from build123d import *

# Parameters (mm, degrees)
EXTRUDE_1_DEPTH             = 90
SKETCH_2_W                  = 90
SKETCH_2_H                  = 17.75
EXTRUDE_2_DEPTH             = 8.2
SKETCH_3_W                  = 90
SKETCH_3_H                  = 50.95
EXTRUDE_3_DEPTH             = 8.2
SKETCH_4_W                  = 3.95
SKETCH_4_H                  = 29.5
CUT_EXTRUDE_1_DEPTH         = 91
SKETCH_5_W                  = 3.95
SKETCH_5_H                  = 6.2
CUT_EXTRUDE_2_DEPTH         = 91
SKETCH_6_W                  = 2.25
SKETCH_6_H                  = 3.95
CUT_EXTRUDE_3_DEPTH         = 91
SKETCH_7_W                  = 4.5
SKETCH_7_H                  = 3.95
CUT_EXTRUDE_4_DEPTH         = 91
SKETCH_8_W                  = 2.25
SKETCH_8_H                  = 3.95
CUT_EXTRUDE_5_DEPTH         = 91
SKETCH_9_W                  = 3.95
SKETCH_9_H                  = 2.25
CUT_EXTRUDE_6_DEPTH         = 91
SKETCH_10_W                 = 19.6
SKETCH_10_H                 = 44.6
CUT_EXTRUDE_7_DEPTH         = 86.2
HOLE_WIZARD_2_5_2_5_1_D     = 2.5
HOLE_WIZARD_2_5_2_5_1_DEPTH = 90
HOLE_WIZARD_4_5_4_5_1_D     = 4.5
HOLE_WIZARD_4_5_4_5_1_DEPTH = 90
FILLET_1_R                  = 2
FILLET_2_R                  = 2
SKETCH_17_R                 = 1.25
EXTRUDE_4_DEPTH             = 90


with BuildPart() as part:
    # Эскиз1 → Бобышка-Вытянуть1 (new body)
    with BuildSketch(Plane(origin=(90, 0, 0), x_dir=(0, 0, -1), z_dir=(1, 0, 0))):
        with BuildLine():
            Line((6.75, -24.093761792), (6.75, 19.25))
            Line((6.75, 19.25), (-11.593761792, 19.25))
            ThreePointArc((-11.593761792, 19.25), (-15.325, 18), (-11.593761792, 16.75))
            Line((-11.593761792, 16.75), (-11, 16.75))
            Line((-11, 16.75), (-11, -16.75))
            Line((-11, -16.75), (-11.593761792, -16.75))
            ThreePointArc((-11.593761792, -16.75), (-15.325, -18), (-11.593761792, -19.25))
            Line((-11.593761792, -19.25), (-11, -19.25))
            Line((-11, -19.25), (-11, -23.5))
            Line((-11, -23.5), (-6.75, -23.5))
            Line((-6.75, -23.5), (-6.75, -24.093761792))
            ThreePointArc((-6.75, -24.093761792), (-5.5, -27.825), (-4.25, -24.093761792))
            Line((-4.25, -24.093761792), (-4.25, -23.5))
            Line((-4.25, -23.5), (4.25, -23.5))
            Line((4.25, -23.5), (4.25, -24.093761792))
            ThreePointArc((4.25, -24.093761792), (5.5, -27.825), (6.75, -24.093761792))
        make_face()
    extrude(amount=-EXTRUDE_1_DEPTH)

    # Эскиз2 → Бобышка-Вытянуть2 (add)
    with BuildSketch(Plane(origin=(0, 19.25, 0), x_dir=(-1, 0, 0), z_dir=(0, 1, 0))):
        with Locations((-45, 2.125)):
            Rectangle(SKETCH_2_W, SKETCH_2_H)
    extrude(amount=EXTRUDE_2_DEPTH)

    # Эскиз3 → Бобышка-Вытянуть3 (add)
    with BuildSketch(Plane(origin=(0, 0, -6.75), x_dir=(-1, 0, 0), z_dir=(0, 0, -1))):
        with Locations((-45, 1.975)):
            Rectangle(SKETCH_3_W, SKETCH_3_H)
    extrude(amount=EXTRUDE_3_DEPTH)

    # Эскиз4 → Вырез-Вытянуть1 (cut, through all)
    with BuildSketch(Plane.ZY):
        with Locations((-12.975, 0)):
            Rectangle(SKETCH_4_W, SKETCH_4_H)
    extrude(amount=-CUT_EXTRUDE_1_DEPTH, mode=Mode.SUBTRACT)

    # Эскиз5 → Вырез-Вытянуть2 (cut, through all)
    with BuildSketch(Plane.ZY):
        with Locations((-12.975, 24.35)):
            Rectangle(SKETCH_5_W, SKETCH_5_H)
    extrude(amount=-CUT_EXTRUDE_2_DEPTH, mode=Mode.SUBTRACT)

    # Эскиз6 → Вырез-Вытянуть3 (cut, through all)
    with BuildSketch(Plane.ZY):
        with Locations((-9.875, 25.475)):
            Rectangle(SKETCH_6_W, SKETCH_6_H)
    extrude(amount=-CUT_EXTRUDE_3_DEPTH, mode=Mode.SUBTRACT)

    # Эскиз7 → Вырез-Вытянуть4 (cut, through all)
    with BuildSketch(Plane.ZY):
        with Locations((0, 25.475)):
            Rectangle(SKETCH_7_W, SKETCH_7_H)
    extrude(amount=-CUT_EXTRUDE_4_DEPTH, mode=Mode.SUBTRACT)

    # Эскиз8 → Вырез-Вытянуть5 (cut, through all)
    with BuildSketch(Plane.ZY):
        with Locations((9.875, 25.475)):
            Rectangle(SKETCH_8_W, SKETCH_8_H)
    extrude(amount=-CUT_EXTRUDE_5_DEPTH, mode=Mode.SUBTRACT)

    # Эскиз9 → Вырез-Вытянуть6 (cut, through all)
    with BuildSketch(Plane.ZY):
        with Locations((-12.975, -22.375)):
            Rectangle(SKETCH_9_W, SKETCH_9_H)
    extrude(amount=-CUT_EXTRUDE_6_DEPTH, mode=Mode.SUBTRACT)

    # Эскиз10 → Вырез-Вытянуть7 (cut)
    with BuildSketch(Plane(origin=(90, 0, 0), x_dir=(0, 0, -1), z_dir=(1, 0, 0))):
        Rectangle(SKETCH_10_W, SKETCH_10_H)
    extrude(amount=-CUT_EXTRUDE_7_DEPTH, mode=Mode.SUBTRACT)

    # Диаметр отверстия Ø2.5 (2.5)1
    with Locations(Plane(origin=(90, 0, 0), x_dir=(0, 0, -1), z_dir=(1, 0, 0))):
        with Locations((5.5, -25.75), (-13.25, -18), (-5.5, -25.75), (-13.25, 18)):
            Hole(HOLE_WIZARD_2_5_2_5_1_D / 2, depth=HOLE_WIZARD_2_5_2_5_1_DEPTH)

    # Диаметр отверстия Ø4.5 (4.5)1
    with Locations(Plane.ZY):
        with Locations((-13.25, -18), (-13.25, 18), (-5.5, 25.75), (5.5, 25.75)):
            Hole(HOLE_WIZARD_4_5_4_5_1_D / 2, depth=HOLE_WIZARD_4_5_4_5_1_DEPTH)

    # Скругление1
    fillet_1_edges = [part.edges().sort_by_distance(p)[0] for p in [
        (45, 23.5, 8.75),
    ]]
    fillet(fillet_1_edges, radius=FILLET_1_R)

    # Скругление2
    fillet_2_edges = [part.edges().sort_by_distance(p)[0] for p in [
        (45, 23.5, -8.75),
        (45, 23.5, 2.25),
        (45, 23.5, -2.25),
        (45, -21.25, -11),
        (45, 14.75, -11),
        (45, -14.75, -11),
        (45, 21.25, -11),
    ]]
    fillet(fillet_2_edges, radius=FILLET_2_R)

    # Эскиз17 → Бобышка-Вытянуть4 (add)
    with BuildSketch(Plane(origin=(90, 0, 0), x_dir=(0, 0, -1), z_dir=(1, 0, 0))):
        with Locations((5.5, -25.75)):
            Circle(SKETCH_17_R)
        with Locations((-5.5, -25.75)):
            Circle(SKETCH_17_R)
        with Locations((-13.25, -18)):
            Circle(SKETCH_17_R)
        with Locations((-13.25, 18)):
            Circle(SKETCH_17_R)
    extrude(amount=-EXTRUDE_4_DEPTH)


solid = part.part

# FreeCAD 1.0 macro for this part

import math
import FreeCAD as App
import Part
import Sketcher
from FreeCAD import Vector


def edges_at(feature, points):
    """Names of the edges that pass closest to the given points."""
    edges = feature.Shape.Edges
    near = lambda p: min(range(len(edges)), key=lambda i: edges[i].distToShape(Part.Vertex(*p))[0])
    return sorted({f"Edge{near(p) + 1}" for p in points})

doc = App.newDocument("Part")
body = doc.addObject("PartDesign::Body", "Body")

# Sketch on YZ plane
sketch1 = body.newObject("Sketcher::SketchObject", "Sketch")
sketch1.AttachmentSupport = (doc.getObject("YZ_Plane"), [""])
sketch1.MapMode = "FlatFace"
sketch1.AttachmentOffset = App.Placement(Vector(0, 0, 90), App.Rotation())
sketch1.addGeometry([
    Part.LineSegment(Vector(-24.1, -6.8, 0), Vector(19.2, -6.8, 0)),  # 0
    Part.LineSegment(Vector(19.2, -6.8, 0), Vector(19.2, 11.6, 0)),  # 1
    Part.ArcOfCircle(Part.Circle(Vector(18, 13.2, 0), Vector(0, 0, 1), 2.1), math.radians(-53), math.radians(233)),  # 2
    Part.LineSegment(Vector(16.8, 11.6, 0), Vector(16.8, 11, 0)),  # 3
    Part.LineSegment(Vector(16.8, 11, 0), Vector(-16.8, 11, 0)),  # 4
    Part.LineSegment(Vector(-16.8, 11, 0), Vector(-16.8, 11.6, 0)),  # 5
    Part.ArcOfCircle(Part.Circle(Vector(-18, 13.2, 0), Vector(0, 0, 1), 2.1), math.radians(-53), math.radians(233)),  # 6
    Part.LineSegment(Vector(-19.2, 11.6, 0), Vector(-19.2, 11, 0)),  # 7
    Part.LineSegment(Vector(-19.2, 11, 0), Vector(-23.5, 11, 0)),  # 8
    Part.LineSegment(Vector(-23.5, 11, 0), Vector(-23.5, 6.8, 0)),  # 9
    Part.LineSegment(Vector(-23.5, 6.8, 0), Vector(-24.1, 6.8, 0)),  # 10
    Part.ArcOfCircle(Part.Circle(Vector(-25.8, 5.5, 0), Vector(0, 0, 1), 2.1), math.radians(37), math.radians(323)),  # 11
    Part.LineSegment(Vector(-24.1, 4.2, 0), Vector(-23.5, 4.2, 0)),  # 12
    Part.LineSegment(Vector(-23.5, 4.2, 0), Vector(-23.5, -4.2, 0)),  # 13
    Part.LineSegment(Vector(-23.5, -4.2, 0), Vector(-24.1, -4.2, 0)),  # 14
    Part.ArcOfCircle(Part.Circle(Vector(-25.8, -5.5, 0), Vector(0, 0, 1), 2.1), math.radians(37), math.radians(323)),  # 15
], False)
sketch1.addConstraint([
    Sketcher.Constraint("Coincident", 0, 2, 1, 1),
    Sketcher.Constraint("Coincident", 1, 2, 2, 1),
    Sketcher.Constraint("Coincident", 2, 2, 3, 1),
    Sketcher.Constraint("Coincident", 3, 2, 4, 1),
    Sketcher.Constraint("Coincident", 4, 2, 5, 1),
    Sketcher.Constraint("Coincident", 5, 2, 6, 1),
    Sketcher.Constraint("Coincident", 6, 2, 7, 1),
    Sketcher.Constraint("Coincident", 7, 2, 8, 1),
    Sketcher.Constraint("Coincident", 8, 2, 9, 1),
    Sketcher.Constraint("Coincident", 9, 2, 10, 1),
    Sketcher.Constraint("Coincident", 10, 2, 11, 1),
    Sketcher.Constraint("Coincident", 11, 2, 12, 1),
    Sketcher.Constraint("Coincident", 12, 2, 13, 1),
    Sketcher.Constraint("Coincident", 13, 2, 14, 1),
    Sketcher.Constraint("Coincident", 14, 2, 15, 1),
    Sketcher.Constraint("Coincident", 15, 2, 0, 1),
    Sketcher.Constraint("Horizontal", 0),
    Sketcher.Constraint("Vertical", 1),
    Sketcher.Constraint("Vertical", 3),
    Sketcher.Constraint("Horizontal", 4),
    Sketcher.Constraint("Vertical", 5),
    Sketcher.Constraint("Vertical", 7),
    Sketcher.Constraint("Horizontal", 8),
    Sketcher.Constraint("Vertical", 9),
    Sketcher.Constraint("Horizontal", 10),
    Sketcher.Constraint("Horizontal", 12),
    Sketcher.Constraint("Vertical", 13),
    Sketcher.Constraint("Horizontal", 14),
    Sketcher.Constraint("Equal", 2, 6),
    Sketcher.Constraint("Equal", 6, 11),
    Sketcher.Constraint("Equal", 11, 15),
    Sketcher.Constraint("Symmetric", 2, 3, 6, 3, -2),
    Sketcher.Constraint("Symmetric", 11, 3, 15, 3, -1),
    Sketcher.Constraint("Horizontal", 1, 2, 2, 2),
    Sketcher.Constraint("Horizontal", 2, 2, 5, 2),
    Sketcher.Constraint("Horizontal", 5, 2, 6, 2),
    Sketcher.Constraint("Horizontal", 4, 2, 7, 2),
    Sketcher.Constraint("Vertical", 10, 2, 11, 2),
    Sketcher.Constraint("Vertical", 9, 2, 12, 2),
    Sketcher.Constraint("Vertical", 11, 2, 14, 2),
    Sketcher.Constraint("Vertical", 14, 2, 15, 2),
    Sketcher.Constraint("Equal", 14, 3),
    Sketcher.Constraint("Equal", 8, 9),
    Sketcher.Constraint("DistanceX", 4, 2, 4, 1, 33.5),
    Sketcher.Constraint("DistanceY", 13, 2, 13, 1, 8.5),
    Sketcher.Constraint("DistanceX", -1, 1, 2, 3, 18.0),
    Sketcher.Constraint("DistanceY", -1, 1, 3, 2, 11.0),
    Sketcher.Constraint("Radius", 2, 2.075),
    Sketcher.Constraint("DistanceY", 15, 3, 11, 3, 11.0),
    Sketcher.Constraint("DistanceY", 0, 2, 2, 3, 20.0),
])
pad1 = body.newObject("PartDesign::Pad", "Pad")
pad1.Profile = sketch1
pad1.Length = 90
pad1.Reversed = True

# Sketch on XZ plane
sketch2 = body.newObject("Sketcher::SketchObject", "Sketch001")
sketch2.AttachmentSupport = (doc.getObject("XZ_Plane"), [""])
sketch2.MapMode = "FlatFace"
sketch2.AttachmentOffset = App.Placement(Vector(0, 0, -19.25), App.Rotation())
sketch2.addGeometry([
    Part.LineSegment(Vector(90, 11, 0), Vector(90, -7, 0)),
    Part.LineSegment(Vector(90, -7, 0), Vector(0, -7, 0)),
    Part.LineSegment(Vector(0, -7, 0), Vector(0, 11, 0)),
    Part.LineSegment(Vector(0, 11, 0), Vector(90, 11, 0)),
], False)
sketch2.addConstraint([
    Sketcher.Constraint("Coincident", 0, 2, 1, 1),
    Sketcher.Constraint("Coincident", 1, 2, 2, 1),
    Sketcher.Constraint("Coincident", 2, 2, 3, 1),
    Sketcher.Constraint("Coincident", 3, 2, 0, 1),
    Sketcher.Constraint("Vertical", 0),
    Sketcher.Constraint("Horizontal", 1),
    Sketcher.Constraint("Vertical", 2),
    Sketcher.Constraint("Horizontal", 3),
    Sketcher.Constraint("PointOnObject", 1, 2, -2),
    Sketcher.Constraint("DistanceX", 1, 2, 1, 1, 90.0),
    Sketcher.Constraint("DistanceY", -1, 1, 2, 2, 11.0),
    Sketcher.Constraint("DistanceY", 0, 2, 0, 1, 17.75),
])
pad2 = body.newObject("PartDesign::Pad", "Pad001")
pad2.Profile = sketch2
pad2.Length = 8.2
pad2.Reversed = True

# Sketch on XY plane
sketch3 = body.newObject("Sketcher::SketchObject", "Sketch002")
sketch3.AttachmentSupport = (doc.getObject("XY_Plane"), [""])
sketch3.MapMode = "FlatFace"
sketch3.AttachmentOffset = App.Placement(Vector(0, 0, -6.75), App.Rotation())
sketch3.addGeometry([
    Part.LineSegment(Vector(90, 27, 0), Vector(90, -24, 0)),
    Part.LineSegment(Vector(90, -24, 0), Vector(0, -24, 0)),
    Part.LineSegment(Vector(0, -24, 0), Vector(0, 27, 0)),
    Part.LineSegment(Vector(0, 27, 0), Vector(90, 27, 0)),
], False)
sketch3.addConstraint([
    Sketcher.Constraint("Coincident", 0, 2, 1, 1),
    Sketcher.Constraint("Coincident", 1, 2, 2, 1),
    Sketcher.Constraint("Coincident", 2, 2, 3, 1),
    Sketcher.Constraint("Coincident", 3, 2, 0, 1),
    Sketcher.Constraint("Vertical", 0),
    Sketcher.Constraint("Horizontal", 1),
    Sketcher.Constraint("Vertical", 2),
    Sketcher.Constraint("Horizontal", 3),
    Sketcher.Constraint("PointOnObject", 1, 2, -2),
    Sketcher.Constraint("DistanceX", 1, 2, 1, 1, 90.0),
    Sketcher.Constraint("DistanceY", 0, 2, 0, 1, 50.95),
    Sketcher.Constraint("DistanceY", 0, 2, -1, 1, 23.5),
])
pad3 = body.newObject("PartDesign::Pad", "Pad002")
pad3.Profile = sketch3
pad3.Length = 8.2
pad3.Reversed = True

# Sketch on YZ plane
sketch4 = body.newObject("Sketcher::SketchObject", "Sketch003")
sketch4.AttachmentSupport = (doc.getObject("YZ_Plane"), [""])
sketch4.MapMode = "FlatFace"
sketch4.addGeometry([
    Part.LineSegment(Vector(14.8, -14.9, 0), Vector(-14.8, -14.9, 0)),
    Part.LineSegment(Vector(-14.8, -14.9, 0), Vector(-14.8, -11, 0)),
    Part.LineSegment(Vector(-14.8, -11, 0), Vector(14.8, -11, 0)),
    Part.LineSegment(Vector(14.8, -11, 0), Vector(14.8, -14.9, 0)),
], False)
sketch4.addConstraint([
    Sketcher.Constraint("Coincident", 0, 2, 1, 1),
    Sketcher.Constraint("Coincident", 1, 2, 2, 1),
    Sketcher.Constraint("Coincident", 2, 2, 3, 1),
    Sketcher.Constraint("Coincident", 3, 2, 0, 1),
    Sketcher.Constraint("Horizontal", 0),
    Sketcher.Constraint("Vertical", 1),
    Sketcher.Constraint("Horizontal", 2),
    Sketcher.Constraint("Vertical", 3),
    Sketcher.Constraint("DistanceX", 0, 2, 0, 1, 29.5),
    Sketcher.Constraint("DistanceY", 1, 2, -1, 1, 11.0),
    Sketcher.Constraint("DistanceY", 1, 1, 1, 2, 3.95),
    Sketcher.Constraint("DistanceX", 0, 2, -1, 1, 14.75),
])
pocket1 = body.newObject("PartDesign::Pocket", "Pocket")
pocket1.Profile = sketch4
pocket1.Type = "ThroughAll"
pocket1.Reversed = True

# Sketch on YZ plane
sketch5 = body.newObject("Sketcher::SketchObject", "Sketch004")
sketch5.AttachmentSupport = (doc.getObject("YZ_Plane"), [""])
sketch5.MapMode = "FlatFace"
sketch5.addGeometry([
    Part.LineSegment(Vector(27.4, -14.9, 0), Vector(21.2, -14.9, 0)),
    Part.LineSegment(Vector(21.2, -14.9, 0), Vector(21.2, -11, 0)),
    Part.LineSegment(Vector(21.2, -11, 0), Vector(27.4, -11, 0)),
    Part.LineSegment(Vector(27.4, -11, 0), Vector(27.4, -14.9, 0)),
], False)
sketch5.addConstraint([
    Sketcher.Constraint("Coincident", 0, 2, 1, 1),
    Sketcher.Constraint("Coincident", 1, 2, 2, 1),
    Sketcher.Constraint("Coincident", 2, 2, 3, 1),
    Sketcher.Constraint("Coincident", 3, 2, 0, 1),
    Sketcher.Constraint("Horizontal", 0),
    Sketcher.Constraint("Vertical", 1),
    Sketcher.Constraint("Horizontal", 2),
    Sketcher.Constraint("Vertical", 3),
    Sketcher.Constraint("DistanceX", 0, 2, 0, 1, 6.2),
    Sketcher.Constraint("DistanceY", 1, 2, -1, 1, 11.0),
    Sketcher.Constraint("DistanceY", 1, 1, 1, 2, 3.95),
    Sketcher.Constraint("DistanceX", -1, 1, 0, 2, 21.25),
])
pocket2 = body.newObject("PartDesign::Pocket", "Pocket001")
pocket2.Profile = sketch5
pocket2.Type = "ThroughAll"
pocket2.Reversed = True

# Sketch on YZ plane
sketch6 = body.newObject("Sketcher::SketchObject", "Sketch005")
sketch6.AttachmentSupport = (doc.getObject("YZ_Plane"), [""])
sketch6.MapMode = "FlatFace"
sketch6.addGeometry([
    Part.LineSegment(Vector(27.4, -11, 0), Vector(23.5, -11, 0)),
    Part.LineSegment(Vector(23.5, -11, 0), Vector(23.5, -8.8, 0)),
    Part.LineSegment(Vector(23.5, -8.8, 0), Vector(27.4, -8.8, 0)),
    Part.LineSegment(Vector(27.4, -8.8, 0), Vector(27.4, -11, 0)),
], False)
sketch6.addConstraint([
    Sketcher.Constraint("Coincident", 0, 2, 1, 1),
    Sketcher.Constraint("Coincident", 1, 2, 2, 1),
    Sketcher.Constraint("Coincident", 2, 2, 3, 1),
    Sketcher.Constraint("Coincident", 3, 2, 0, 1),
    Sketcher.Constraint("Horizontal", 0),
    Sketcher.Constraint("Vertical", 1),
    Sketcher.Constraint("Horizontal", 2),
    Sketcher.Constraint("Vertical", 3),
    Sketcher.Constraint("DistanceY", 0, 2, -1, 1, 11.0),
    Sketcher.Constraint("DistanceX", 0, 2, 0, 1, 3.95),
    Sketcher.Constraint("DistanceY", 1, 1, 1, 2, 2.25),
    Sketcher.Constraint("DistanceX", -1, 1, 0, 2, 23.5),
])
pocket3 = body.newObject("PartDesign::Pocket", "Pocket002")
pocket3.Profile = sketch6
pocket3.Type = "ThroughAll"
pocket3.Reversed = True

# Sketch on YZ plane
sketch7 = body.newObject("Sketcher::SketchObject", "Sketch006")
sketch7.AttachmentSupport = (doc.getObject("YZ_Plane"), [""])
sketch7.MapMode = "FlatFace"
sketch7.addGeometry([
    Part.LineSegment(Vector(27.4, -2.2, 0), Vector(23.5, -2.2, 0)),
    Part.LineSegment(Vector(23.5, -2.2, 0), Vector(23.5, 2.2, 0)),
    Part.LineSegment(Vector(23.5, 2.2, 0), Vector(27.4, 2.2, 0)),
    Part.LineSegment(Vector(27.4, 2.2, 0), Vector(27.4, -2.2, 0)),
], False)
sketch7.addConstraint([
    Sketcher.Constraint("Coincident", 0, 2, 1, 1),
    Sketcher.Constraint("Coincident", 1, 2, 2, 1),
    Sketcher.Constraint("Coincident", 2, 2, 3, 1),
    Sketcher.Constraint("Coincident", 3, 2, 0, 1),
    Sketcher.Constraint("Horizontal", 0),
    Sketcher.Constraint("Vertical", 1),
    Sketcher.Constraint("Horizontal", 2),
    Sketcher.Constraint("Vertical", 3),
    Sketcher.Constraint("DistanceY", 1, 1, 1, 2, 4.5),
    Sketcher.Constraint("DistanceX", 0, 2, 0, 1, 3.95),
    Sketcher.Constraint("DistanceX", -1, 1, 0, 2, 23.5),
    Sketcher.Constraint("DistanceY", 0, 2, -1, 1, 2.25),
])
pocket4 = body.newObject("PartDesign::Pocket", "Pocket003")
pocket4.Profile = sketch7
pocket4.Type = "ThroughAll"
pocket4.Reversed = True

# Sketch on YZ plane
sketch8 = body.newObject("Sketcher::SketchObject", "Sketch007")
sketch8.AttachmentSupport = (doc.getObject("YZ_Plane"), [""])
sketch8.MapMode = "FlatFace"
sketch8.addGeometry([
    Part.LineSegment(Vector(27.4, 8.8, 0), Vector(23.5, 8.8, 0)),
    Part.LineSegment(Vector(23.5, 8.8, 0), Vector(23.5, 11, 0)),
    Part.LineSegment(Vector(23.5, 11, 0), Vector(27.4, 11, 0)),
    Part.LineSegment(Vector(27.4, 11, 0), Vector(27.4, 8.8, 0)),
], False)
sketch8.addConstraint([
    Sketcher.Constraint("Coincident", 0, 2, 1, 1),
    Sketcher.Constraint("Coincident", 1, 2, 2, 1),
    Sketcher.Constraint("Coincident", 2, 2, 3, 1),
    Sketcher.Constraint("Coincident", 3, 2, 0, 1),
    Sketcher.Constraint("Horizontal", 0),
    Sketcher.Constraint("Vertical", 1),
    Sketcher.Constraint("Horizontal", 2),
    Sketcher.Constraint("Vertical", 3),
    Sketcher.Constraint("DistanceY", -1, 1, 1, 2, 11.0),
    Sketcher.Constraint("DistanceX", 0, 2, 0, 1, 3.95),
    Sketcher.Constraint("DistanceY", 1, 1, 1, 2, 2.25),
    Sketcher.Constraint("DistanceX", -1, 1, 0, 2, 23.5),
])
pocket5 = body.newObject("PartDesign::Pocket", "Pocket004")
pocket5.Profile = sketch8
pocket5.Type = "ThroughAll"
pocket5.Reversed = True

# Sketch on YZ plane
sketch9 = body.newObject("Sketcher::SketchObject", "Sketch008")
sketch9.AttachmentSupport = (doc.getObject("YZ_Plane"), [""])
sketch9.MapMode = "FlatFace"
sketch9.addGeometry([
    Part.LineSegment(Vector(-21.2, -14.9, 0), Vector(-23.5, -14.9, 0)),
    Part.LineSegment(Vector(-23.5, -14.9, 0), Vector(-23.5, -11, 0)),
    Part.LineSegment(Vector(-23.5, -11, 0), Vector(-21.2, -11, 0)),
    Part.LineSegment(Vector(-21.2, -11, 0), Vector(-21.2, -14.9, 0)),
], False)
sketch9.addConstraint([
    Sketcher.Constraint("Coincident", 0, 2, 1, 1),
    Sketcher.Constraint("Coincident", 1, 2, 2, 1),
    Sketcher.Constraint("Coincident", 2, 2, 3, 1),
    Sketcher.Constraint("Coincident", 3, 2, 0, 1),
    Sketcher.Constraint("Horizontal", 0),
    Sketcher.Constraint("Vertical", 1),
    Sketcher.Constraint("Horizontal", 2),
    Sketcher.Constraint("Vertical", 3),
    Sketcher.Constraint("DistanceY", 1, 2, -1, 1, 11.0),
    Sketcher.Constraint("DistanceX", 0, 2, 0, 1, 2.25),
    Sketcher.Constraint("DistanceY", 1, 1, 1, 2, 3.95),
    Sketcher.Constraint("DistanceX", 0, 2, -1, 1, 23.5),
])
pocket6 = body.newObject("PartDesign::Pocket", "Pocket005")
pocket6.Profile = sketch9
pocket6.Type = "ThroughAll"
pocket6.Reversed = True

# Sketch on YZ plane
sketch10 = body.newObject("Sketcher::SketchObject", "Sketch009")
sketch10.AttachmentSupport = (doc.getObject("YZ_Plane"), [""])
sketch10.MapMode = "FlatFace"
sketch10.AttachmentOffset = App.Placement(Vector(0, 0, 90), App.Rotation())
sketch10.addGeometry([
    Part.LineSegment(Vector(22, 10, 0), Vector(-22, 10, 0)),
    Part.LineSegment(Vector(-22, 10, 0), Vector(-22, -10, 0)),
    Part.LineSegment(Vector(-22, -10, 0), Vector(22, -10, 0)),
    Part.LineSegment(Vector(22, -10, 0), Vector(22, 10, 0)),
], False)
sketch10.addConstraint([
    Sketcher.Constraint("Coincident", 0, 2, 1, 1),
    Sketcher.Constraint("Coincident", 1, 2, 2, 1),
    Sketcher.Constraint("Coincident", 2, 2, 3, 1),
    Sketcher.Constraint("Coincident", 3, 2, 0, 1),
    Sketcher.Constraint("Horizontal", 0),
    Sketcher.Constraint("Vertical", 1),
    Sketcher.Constraint("Horizontal", 2),
    Sketcher.Constraint("Vertical", 3),
    Sketcher.Constraint("Symmetric", 0, 2, 2, 2, -1, 1),
    Sketcher.Constraint("DistanceX", 0, 2, 0, 1, 44.6),
    Sketcher.Constraint("DistanceY", 1, 2, 1, 1, 19.6),
])
pocket7 = body.newObject("PartDesign::Pocket", "Pocket006")
pocket7.Profile = sketch10
pocket7.Length = 86.2

# Sketch on YZ plane
sketch11 = body.newObject("Sketcher::SketchObject", "Sketch010")
sketch11.AttachmentSupport = (doc.getObject("YZ_Plane"), [""])
sketch11.MapMode = "FlatFace"
sketch11.AttachmentOffset = App.Placement(Vector(0, 0, 90), App.Rotation())
sketch11.addGeometry([
    Part.Circle(Vector(-25.8, -5.5, 0), Vector(0, 0, 1), 1.2),
    Part.Circle(Vector(-18, 13.2, 0), Vector(0, 0, 1), 1.2),
    Part.Circle(Vector(-25.8, 5.5, 0), Vector(0, 0, 1), 1.2),
    Part.Circle(Vector(18, 13.2, 0), Vector(0, 0, 1), 1.2),
], False)
sketch11.addConstraint([
    Sketcher.Constraint("Equal", 0, 1),
    Sketcher.Constraint("Equal", 1, 2),
    Sketcher.Constraint("Equal", 2, 3),
    Sketcher.Constraint("Symmetric", 1, 3, 3, 3, -2),
    Sketcher.Constraint("Symmetric", 0, 3, 2, 3, -1),
    Sketcher.Constraint("Diameter", 0, 2.5),
    Sketcher.Constraint("DistanceX", 1, 3, -1, 1, 18.0),
    Sketcher.Constraint("DistanceY", 0, 3, 2, 3, 11.0),
    Sketcher.Constraint("DistanceX", 0, 3, -1, 1, 25.75),
    Sketcher.Constraint("DistanceY", -1, 1, 1, 3, 13.25),
])
doc.recompute()
hole = body.newObject("PartDesign::Hole", "Hole")
hole.Profile = sketch11
hole.ThreadType = "None"
hole.Diameter = 2.5
hole.DepthType = "Dimension"
hole.Depth = 90
hole.DrillPoint = "Flat"

# Sketch on YZ plane
sketch12 = body.newObject("Sketcher::SketchObject", "Sketch011")
sketch12.AttachmentSupport = (doc.getObject("YZ_Plane"), [""])
sketch12.MapMode = "FlatFace"
sketch12.addGeometry([
    Part.Circle(Vector(-18, -13.2, 0), Vector(0, 0, 1), 2.2),
    Part.Circle(Vector(18, -13.2, 0), Vector(0, 0, 1), 2.2),
    Part.Circle(Vector(25.8, -5.5, 0), Vector(0, 0, 1), 2.2),
    Part.Circle(Vector(25.8, 5.5, 0), Vector(0, 0, 1), 2.2),
], False)
sketch12.addConstraint([
    Sketcher.Constraint("Equal", 0, 1),
    Sketcher.Constraint("Equal", 1, 2),
    Sketcher.Constraint("Equal", 2, 3),
    Sketcher.Constraint("Symmetric", 0, 3, 1, 3, -2),
    Sketcher.Constraint("Symmetric", 2, 3, 3, 3, -1),
    Sketcher.Constraint("Diameter", 0, 4.5),
    Sketcher.Constraint("DistanceX", 0, 3, -1, 1, 18.0),
    Sketcher.Constraint("DistanceY", 2, 3, 3, 3, 11.0),
    Sketcher.Constraint("DistanceY", 0, 3, -1, 1, 13.25),
    Sketcher.Constraint("DistanceX", -1, 1, 2, 3, 25.75),
])
doc.recompute()
hole2 = body.newObject("PartDesign::Hole", "Hole001")
hole2.Profile = sketch12
hole2.ThreadType = "None"
hole2.Diameter = 4.5
hole2.DepthType = "Dimension"
hole2.Depth = 90
hole2.DrillPoint = "Flat"
hole2.Reversed = True
doc.recompute()

fillet = body.newObject("PartDesign::Fillet", "Fillet")
fillet.Base = (hole2, edges_at(hole2, [(45, 23.5, 8.75)]))
fillet.Radius = 2
doc.recompute()

fillet2 = body.newObject("PartDesign::Fillet", "Fillet001")
fillet2.Base = (fillet, edges_at(fillet, [
    (45, 23.5, -8.75),
    (45, 23.5, 2.25),
    (45, 23.5, -2.25),
    (45, -21.25, -11),
    (45, 14.75, -11),
    (45, -14.75, -11),
    (45, 21.25, -11),
]))
fillet2.Radius = 2

# Sketch on YZ plane
sketch13 = body.newObject("Sketcher::SketchObject", "Sketch012")
sketch13.AttachmentSupport = (doc.getObject("YZ_Plane"), [""])
sketch13.MapMode = "FlatFace"
sketch13.AttachmentOffset = App.Placement(Vector(0, 0, 90), App.Rotation())
sketch13.addGeometry([
    Part.Circle(Vector(-25.8, -5.5, 0), Vector(0, 0, 1), 1.2),
    Part.Circle(Vector(-25.8, 5.5, 0), Vector(0, 0, 1), 1.2),
    Part.Circle(Vector(-18, 13.2, 0), Vector(0, 0, 1), 1.2),
    Part.Circle(Vector(18, 13.2, 0), Vector(0, 0, 1), 1.2),
], False)
sketch13.addConstraint([
    Sketcher.Constraint("Equal", 0, 1),
    Sketcher.Constraint("Equal", 1, 2),
    Sketcher.Constraint("Equal", 2, 3),
    Sketcher.Constraint("Symmetric", 2, 3, 3, 3, -2),
    Sketcher.Constraint("Symmetric", 0, 3, 1, 3, -1),
    Sketcher.Constraint("Diameter", 0, 2.5),
    Sketcher.Constraint("DistanceX", 2, 3, -1, 1, 18.0),
    Sketcher.Constraint("DistanceY", 0, 3, 1, 3, 11.0),
    Sketcher.Constraint("DistanceX", 0, 3, -1, 1, 25.75),
    Sketcher.Constraint("DistanceY", -1, 1, 2, 3, 13.25),
])
pad4 = body.newObject("PartDesign::Pad", "Pad003")
pad4.Profile = sketch13
pad4.Length = 90
pad4.Reversed = True

doc.recompute()
